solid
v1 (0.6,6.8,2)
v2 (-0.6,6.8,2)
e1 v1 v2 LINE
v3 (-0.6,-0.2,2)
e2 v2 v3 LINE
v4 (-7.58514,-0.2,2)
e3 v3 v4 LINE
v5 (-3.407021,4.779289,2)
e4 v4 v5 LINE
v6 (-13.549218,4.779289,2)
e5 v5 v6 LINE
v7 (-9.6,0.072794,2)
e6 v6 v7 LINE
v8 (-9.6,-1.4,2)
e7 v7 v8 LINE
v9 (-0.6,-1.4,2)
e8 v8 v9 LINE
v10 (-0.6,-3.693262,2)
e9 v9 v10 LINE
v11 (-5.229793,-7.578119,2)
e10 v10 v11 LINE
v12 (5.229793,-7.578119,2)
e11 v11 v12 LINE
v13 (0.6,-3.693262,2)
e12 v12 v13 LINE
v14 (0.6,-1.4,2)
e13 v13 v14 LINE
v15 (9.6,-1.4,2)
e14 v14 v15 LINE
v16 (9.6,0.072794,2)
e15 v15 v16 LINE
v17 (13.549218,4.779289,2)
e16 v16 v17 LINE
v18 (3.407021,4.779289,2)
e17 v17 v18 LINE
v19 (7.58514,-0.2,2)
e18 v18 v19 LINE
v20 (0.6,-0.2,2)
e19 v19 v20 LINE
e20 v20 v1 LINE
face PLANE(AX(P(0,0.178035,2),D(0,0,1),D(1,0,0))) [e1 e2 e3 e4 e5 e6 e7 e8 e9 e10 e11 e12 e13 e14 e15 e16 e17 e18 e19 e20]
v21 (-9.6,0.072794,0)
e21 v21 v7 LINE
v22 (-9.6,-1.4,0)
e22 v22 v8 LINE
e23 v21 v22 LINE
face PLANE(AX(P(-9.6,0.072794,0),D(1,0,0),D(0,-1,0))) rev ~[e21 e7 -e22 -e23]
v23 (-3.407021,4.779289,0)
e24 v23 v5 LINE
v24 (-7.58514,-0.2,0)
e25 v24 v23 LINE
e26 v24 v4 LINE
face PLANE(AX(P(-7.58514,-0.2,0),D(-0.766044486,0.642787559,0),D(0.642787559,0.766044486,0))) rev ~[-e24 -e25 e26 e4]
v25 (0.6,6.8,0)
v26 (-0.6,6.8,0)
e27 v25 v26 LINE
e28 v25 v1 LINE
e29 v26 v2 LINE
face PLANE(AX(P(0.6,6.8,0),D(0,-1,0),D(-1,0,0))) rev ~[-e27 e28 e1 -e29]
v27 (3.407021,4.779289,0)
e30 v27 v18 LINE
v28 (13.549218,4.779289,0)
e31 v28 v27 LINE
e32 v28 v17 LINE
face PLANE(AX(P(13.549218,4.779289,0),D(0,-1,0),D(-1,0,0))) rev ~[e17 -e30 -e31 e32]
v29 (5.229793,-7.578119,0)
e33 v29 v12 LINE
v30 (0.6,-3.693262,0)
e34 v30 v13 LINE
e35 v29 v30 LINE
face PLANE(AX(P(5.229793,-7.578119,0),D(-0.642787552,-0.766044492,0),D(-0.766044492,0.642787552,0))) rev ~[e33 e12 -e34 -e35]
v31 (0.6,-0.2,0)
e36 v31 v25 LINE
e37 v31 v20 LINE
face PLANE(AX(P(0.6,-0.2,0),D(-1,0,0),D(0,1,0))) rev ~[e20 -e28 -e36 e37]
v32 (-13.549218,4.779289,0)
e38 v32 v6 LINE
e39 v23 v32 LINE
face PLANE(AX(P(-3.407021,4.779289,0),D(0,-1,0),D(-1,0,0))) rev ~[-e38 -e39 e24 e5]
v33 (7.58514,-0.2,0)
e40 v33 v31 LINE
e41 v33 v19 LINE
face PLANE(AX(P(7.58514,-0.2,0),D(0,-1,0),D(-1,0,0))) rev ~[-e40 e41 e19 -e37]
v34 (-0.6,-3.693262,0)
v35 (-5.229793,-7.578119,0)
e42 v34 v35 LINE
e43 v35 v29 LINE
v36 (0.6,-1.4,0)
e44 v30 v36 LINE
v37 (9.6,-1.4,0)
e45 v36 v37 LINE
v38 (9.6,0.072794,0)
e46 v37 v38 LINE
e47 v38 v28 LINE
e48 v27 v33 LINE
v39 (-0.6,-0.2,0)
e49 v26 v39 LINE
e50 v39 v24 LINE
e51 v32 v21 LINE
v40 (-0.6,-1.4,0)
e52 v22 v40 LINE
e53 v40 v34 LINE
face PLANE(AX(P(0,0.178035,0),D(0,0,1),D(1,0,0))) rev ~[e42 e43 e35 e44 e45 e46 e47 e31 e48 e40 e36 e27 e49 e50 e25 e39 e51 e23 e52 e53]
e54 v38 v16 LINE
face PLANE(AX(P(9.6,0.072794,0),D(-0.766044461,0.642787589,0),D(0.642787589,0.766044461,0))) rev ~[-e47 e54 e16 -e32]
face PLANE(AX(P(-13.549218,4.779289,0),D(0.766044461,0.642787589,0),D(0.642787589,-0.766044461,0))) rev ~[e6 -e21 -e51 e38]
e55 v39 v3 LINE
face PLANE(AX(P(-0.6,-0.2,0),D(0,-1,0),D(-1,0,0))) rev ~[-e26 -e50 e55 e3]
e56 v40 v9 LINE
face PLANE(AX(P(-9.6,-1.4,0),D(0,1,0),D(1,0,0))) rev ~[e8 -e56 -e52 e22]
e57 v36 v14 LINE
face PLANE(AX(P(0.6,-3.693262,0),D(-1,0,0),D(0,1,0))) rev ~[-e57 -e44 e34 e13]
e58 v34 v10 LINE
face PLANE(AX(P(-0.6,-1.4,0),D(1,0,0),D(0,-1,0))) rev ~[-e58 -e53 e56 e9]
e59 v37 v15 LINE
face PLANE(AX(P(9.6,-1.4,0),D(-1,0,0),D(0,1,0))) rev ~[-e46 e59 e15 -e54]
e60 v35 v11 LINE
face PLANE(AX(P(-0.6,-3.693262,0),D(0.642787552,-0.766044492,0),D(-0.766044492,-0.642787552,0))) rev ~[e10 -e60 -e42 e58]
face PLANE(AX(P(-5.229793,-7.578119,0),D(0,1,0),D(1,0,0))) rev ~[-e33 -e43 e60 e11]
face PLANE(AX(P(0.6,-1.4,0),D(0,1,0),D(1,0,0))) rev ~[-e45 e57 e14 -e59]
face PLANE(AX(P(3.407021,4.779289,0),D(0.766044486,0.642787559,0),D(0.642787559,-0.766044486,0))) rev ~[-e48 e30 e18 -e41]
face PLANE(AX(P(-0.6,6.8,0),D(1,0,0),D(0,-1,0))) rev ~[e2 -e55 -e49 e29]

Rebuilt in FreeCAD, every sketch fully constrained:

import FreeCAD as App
import Part
import Sketcher

V = App.Vector
Q = App.Units.Quantity


def add_polygon(sketch, points):
    """Adds a closed chain of lines whose ends are joined by coincident constraints."""
    first, n = sketch.GeometryCount, len(points)
    for a, b in zip(points, points[1:] + points[:1]):
        sketch.addGeometry(Part.LineSegment(App.Vector(*a, 0), App.Vector(*b, 0)), False)
    for i in range(n):
        sketch.addConstraint(Sketcher.Constraint("Coincident", first + i, 2, first + (i + 1) % n, 1))

doc = App.newDocument("Part")
body = doc.addObject("PartDesign::Body", "Body")

sketch1 = body.newObject("Sketcher::SketchObject", "Sketch")
sketch1.AttachmentSupport = (doc.getObject("XY_Plane"), [""])
sketch1.MapMode = "FlatFace"
add_polygon(sketch1, [(-9.6, 0.072794), (-9.6, -1.4), (-0.6, -1.4), (-0.6, -3.693262), (-5.229793, -7.578119), (5.229793, -7.578119), (0.6, -3.693262), (0.6, -1.4), (9.6, -1.4), (9.6, 0.072794), (13.549218, 4.779289), (3.407021, 4.779289), (7.58514, -0.2), (0.6, -0.2), (0.6, 6.8), (-0.6, 6.8), (-0.6, -0.2), (-7.58514, -0.2), (-3.407021, 4.779289), (-13.549218, 4.779289)])
sketch1.addConstraint([
    Sketcher.Constraint("Vertical", 0),
    Sketcher.Constraint("Horizontal", 1),
    Sketcher.Constraint("Vertical", 2),
    Sketcher.Constraint("Horizontal", 4),
    Sketcher.Constraint("Vertical", 6),
    Sketcher.Constraint("Horizontal", 7),
    Sketcher.Constraint("Vertical", 8),
    Sketcher.Constraint("Horizontal", 10),
    Sketcher.Constraint("Horizontal", 12),
    Sketcher.Constraint("Vertical", 13),
    Sketcher.Constraint("Horizontal", 14),
    Sketcher.Constraint("Vertical", 15),
    Sketcher.Constraint("Horizontal", 16),
    Sketcher.Constraint("Horizontal", 18),
    Sketcher.Constraint("Symmetric", 2, 2, 5, 2, -2),
    Sketcher.Constraint("Symmetric", 0, 2, 7, 2, -2),
    Sketcher.Constraint("Symmetric", 12, 2, 15, 2, -2),
    Sketcher.Constraint("Symmetric", 10, 2, 17, 2, -2),
    Sketcher.Constraint("Perpendicular", 5, 9),
    Sketcher.Constraint("Perpendicular", 3, 11),
    Sketcher.Constraint("Parallel", 9, 17),
    Sketcher.Constraint("Parallel", 11, 19),
    Sketcher.Constraint("Horizontal", 8, 2, 19, 2),
    Sketcher.Constraint("Vertical", 6, 2, 12, 2),
    Sketcher.Constraint("Equal", 12, 16),
    Sketcher.Constraint("DistanceX", 1, 1, 1, 2, 9.0),
    Sketcher.Constraint("DistanceY", 13, 1, 13, 2, 7.0),
    Sketcher.Constraint("Angle", 3, Q("-140.000004 deg")),
    Sketcher.Constraint("DistanceX", 14, 2, 14, 1, 1.2),
    Sketcher.Constraint("Distance", 11, 6.5),
    Sketcher.Constraint("DistanceY", 0, 2, -1, 1, 1.4),
    Sketcher.Constraint("DistanceY", 11, 2, -1, 1, 0.2),
    Sketcher.Constraint("DistanceX", 12, 2, 12, 1, 6.98514),
    Sketcher.Constraint("DistanceY", 2, 2, 2, 1, 2.293262),
    Sketcher.Constraint("DistanceX", 4, 1, 4, 2, 10.459586),
    Sketcher.Constraint("DistanceX", 10, 2, 10, 1, 10.142197),
])
pad1 = body.newObject("PartDesign::Pad", "Pad")
pad1.Profile = sketch1
pad1.Length = 2

doc.recompute()
